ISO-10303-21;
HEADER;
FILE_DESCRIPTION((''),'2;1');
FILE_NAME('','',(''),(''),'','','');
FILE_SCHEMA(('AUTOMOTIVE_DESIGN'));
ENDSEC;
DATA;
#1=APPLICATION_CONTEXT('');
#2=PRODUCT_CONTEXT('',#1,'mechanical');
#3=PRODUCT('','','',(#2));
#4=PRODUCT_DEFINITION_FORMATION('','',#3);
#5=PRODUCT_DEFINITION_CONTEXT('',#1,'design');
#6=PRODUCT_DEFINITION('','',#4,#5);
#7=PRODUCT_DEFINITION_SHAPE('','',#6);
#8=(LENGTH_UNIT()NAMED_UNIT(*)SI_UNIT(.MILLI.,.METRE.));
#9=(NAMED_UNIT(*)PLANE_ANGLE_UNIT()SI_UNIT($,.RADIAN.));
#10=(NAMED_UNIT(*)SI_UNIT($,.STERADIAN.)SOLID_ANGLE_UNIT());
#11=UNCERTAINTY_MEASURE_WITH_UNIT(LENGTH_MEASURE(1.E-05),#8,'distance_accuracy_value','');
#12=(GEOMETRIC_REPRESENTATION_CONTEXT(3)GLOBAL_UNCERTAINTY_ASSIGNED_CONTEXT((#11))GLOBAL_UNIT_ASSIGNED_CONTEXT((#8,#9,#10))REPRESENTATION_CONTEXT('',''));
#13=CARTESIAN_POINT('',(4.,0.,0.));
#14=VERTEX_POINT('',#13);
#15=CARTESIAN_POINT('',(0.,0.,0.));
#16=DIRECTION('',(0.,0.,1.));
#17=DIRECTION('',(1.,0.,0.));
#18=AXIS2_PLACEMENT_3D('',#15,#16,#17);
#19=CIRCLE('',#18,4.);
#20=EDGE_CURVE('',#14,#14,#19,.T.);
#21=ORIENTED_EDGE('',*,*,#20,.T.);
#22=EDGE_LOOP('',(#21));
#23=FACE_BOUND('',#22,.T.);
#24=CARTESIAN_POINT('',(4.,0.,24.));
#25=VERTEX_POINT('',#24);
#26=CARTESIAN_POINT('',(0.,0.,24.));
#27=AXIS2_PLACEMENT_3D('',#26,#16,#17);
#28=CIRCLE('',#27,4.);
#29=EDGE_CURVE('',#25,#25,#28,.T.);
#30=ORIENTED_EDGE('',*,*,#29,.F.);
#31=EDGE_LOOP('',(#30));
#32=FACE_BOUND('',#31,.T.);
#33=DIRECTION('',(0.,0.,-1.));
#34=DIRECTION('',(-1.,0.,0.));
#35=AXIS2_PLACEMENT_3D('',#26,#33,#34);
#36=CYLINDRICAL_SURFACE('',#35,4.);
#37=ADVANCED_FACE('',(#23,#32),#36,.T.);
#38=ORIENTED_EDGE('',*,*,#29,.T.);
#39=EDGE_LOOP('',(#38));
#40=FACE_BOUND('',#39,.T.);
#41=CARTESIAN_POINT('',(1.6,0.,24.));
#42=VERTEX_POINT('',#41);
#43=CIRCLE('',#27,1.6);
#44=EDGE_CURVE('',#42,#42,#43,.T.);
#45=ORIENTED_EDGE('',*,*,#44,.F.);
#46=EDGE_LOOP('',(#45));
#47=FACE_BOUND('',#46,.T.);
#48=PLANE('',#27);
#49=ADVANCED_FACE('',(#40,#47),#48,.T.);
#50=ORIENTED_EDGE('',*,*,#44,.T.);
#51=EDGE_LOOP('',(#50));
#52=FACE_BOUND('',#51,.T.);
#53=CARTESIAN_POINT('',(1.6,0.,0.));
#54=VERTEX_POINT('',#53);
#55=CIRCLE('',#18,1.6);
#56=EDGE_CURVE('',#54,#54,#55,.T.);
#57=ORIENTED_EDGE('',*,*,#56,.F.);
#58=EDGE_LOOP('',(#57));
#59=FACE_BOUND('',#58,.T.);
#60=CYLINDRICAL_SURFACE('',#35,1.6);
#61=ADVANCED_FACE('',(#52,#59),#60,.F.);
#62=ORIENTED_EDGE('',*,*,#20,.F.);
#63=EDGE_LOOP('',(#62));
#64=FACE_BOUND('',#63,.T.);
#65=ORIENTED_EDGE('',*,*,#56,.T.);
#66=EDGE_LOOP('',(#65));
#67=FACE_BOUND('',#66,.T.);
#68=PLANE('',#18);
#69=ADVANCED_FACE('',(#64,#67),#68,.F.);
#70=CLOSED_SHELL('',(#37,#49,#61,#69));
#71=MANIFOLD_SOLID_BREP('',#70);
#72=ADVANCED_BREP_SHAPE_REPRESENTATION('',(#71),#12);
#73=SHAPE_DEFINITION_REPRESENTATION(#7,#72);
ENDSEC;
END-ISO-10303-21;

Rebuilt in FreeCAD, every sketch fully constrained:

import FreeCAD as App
import Part
import Sketcher

V = App.Vector
Q = App.Units.Quantity

doc = App.newDocument("Part")
body = doc.addObject("PartDesign::Body", "Body")

# Sketch on XY plane
sketch1 = body.newObject("Sketcher::SketchObject", "Sketch")
sketch1.AttachmentSupport = (doc.getObject("XY_Plane"), [""])
sketch1.MapMode = "FlatFace"
sketch1.addGeometry([
    Part.Circle(V(0, 0, 0), V(0, 0, 1), 4),
    Part.Circle(V(0, 0, 0), V(0, 0, 1), 1.6),
], False)
sketch1.addConstraint([
    Sketcher.Constraint("Coincident", 0, 3, -1, 1),
    Sketcher.Constraint("Coincident", 1, 3, -1, 1),
    Sketcher.Constraint("Diameter", 0, Q("8 mm")),
    Sketcher.Constraint("Diameter", 1, Q("3.2 mm")),
])
pad1 = body.newObject("PartDesign::Pad", "Pad")
pad1.Profile = sketch1
pad1.Length = 24

doc.recompute()
